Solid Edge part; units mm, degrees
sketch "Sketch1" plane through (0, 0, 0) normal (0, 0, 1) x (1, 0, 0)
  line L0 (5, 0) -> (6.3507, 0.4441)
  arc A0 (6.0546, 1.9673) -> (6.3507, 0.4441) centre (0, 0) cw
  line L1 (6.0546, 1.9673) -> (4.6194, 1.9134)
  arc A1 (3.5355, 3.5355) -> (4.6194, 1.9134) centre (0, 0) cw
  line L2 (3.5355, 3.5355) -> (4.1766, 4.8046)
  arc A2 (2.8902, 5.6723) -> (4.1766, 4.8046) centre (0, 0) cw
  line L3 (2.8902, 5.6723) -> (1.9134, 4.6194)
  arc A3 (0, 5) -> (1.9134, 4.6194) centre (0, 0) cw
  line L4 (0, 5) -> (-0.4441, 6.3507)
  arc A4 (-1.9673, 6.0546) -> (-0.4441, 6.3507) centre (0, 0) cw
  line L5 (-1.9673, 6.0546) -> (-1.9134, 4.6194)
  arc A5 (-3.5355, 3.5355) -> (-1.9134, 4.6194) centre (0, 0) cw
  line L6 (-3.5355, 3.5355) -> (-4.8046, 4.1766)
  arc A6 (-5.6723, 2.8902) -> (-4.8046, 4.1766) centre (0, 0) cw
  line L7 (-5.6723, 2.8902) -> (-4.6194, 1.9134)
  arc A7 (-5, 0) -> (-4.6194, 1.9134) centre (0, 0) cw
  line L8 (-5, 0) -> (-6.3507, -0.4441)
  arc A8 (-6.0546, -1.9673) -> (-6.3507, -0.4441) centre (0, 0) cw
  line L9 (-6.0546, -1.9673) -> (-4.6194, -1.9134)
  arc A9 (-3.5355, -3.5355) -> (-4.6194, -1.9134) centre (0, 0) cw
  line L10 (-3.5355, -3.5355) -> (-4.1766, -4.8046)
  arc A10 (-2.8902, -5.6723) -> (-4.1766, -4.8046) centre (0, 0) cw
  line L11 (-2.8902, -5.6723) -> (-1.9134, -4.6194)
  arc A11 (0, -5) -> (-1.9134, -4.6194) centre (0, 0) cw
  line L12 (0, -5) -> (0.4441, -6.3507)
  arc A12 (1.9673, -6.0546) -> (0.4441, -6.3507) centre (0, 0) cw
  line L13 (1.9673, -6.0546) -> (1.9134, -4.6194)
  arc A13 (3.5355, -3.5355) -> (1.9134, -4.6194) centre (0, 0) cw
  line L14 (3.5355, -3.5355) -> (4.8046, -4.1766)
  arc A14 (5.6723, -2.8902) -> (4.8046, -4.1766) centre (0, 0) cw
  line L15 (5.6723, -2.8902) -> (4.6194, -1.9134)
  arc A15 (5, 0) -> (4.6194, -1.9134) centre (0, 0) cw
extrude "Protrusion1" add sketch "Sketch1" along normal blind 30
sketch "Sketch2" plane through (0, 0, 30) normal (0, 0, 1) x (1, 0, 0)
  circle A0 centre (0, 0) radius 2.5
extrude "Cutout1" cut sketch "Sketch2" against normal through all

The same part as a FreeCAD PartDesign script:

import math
import FreeCAD as App
import Part
import Sketcher
from FreeCAD import Vector
Q = App.Units.Quantity

doc = App.newDocument("Part")
params = doc.addObject("Spreadsheet::Sheet", "Params")
for row, (alias, value) in enumerate([
    ("sketch1_radius", "5 mm"),
    ("pad1_length", "30 mm"),
    ("sketch2_diameter", "5 mm"),
], start=1):
    params.set(f"A{row}", alias)
    params.set(f"B{row}", "=" + value)
    params.setAlias(f"B{row}", alias)

body = doc.addObject("PartDesign::Body", "Body")

sketch1 = body.newObject("Sketcher::SketchObject", "Sketch")
sketch1.AttachmentSupport = (doc.getObject("XY_Plane"), [""])
sketch1.MapMode = "FlatFace"
sketch1.addGeometry(Part.ArcOfCircle(Part.Circle(Vector(0, 0, 0), Vector(0, 0, 1), 4.999952), math.radians(-22.499808), math.radians(0)), False)
sketch1.addGeometry(Part.LineSegment(Vector(5, 0, 0), Vector(6.3507, 0.4441, 0)), False)
sketch1.addGeometry(Part.ArcOfCircle(Part.Circle(Vector(0, 0, 0), Vector(0, 0, 1), 6.366196), math.radians(4.000142), math.radians(18.000353)), False)
sketch1.addGeometry(Part.LineSegment(Vector(6.0546, 1.9673, 0), Vector(4.6194, 1.9134, 0)), False)
sketch1.addGeometry(Part.ArcOfCircle(Part.Circle(Vector(-0.00088, -0.000722, 0), Vector(0, 0, 1), 5.001085), math.radians(22.503595), math.radians(44.998721)), False)
sketch1.addGeometry(Part.LineSegment(Vector(3.5355, 3.5355, 0), Vector(4.1766, 4.8046, 0)), False)
sketch1.addGeometry(Part.ArcOfCircle(Part.Circle(Vector(0, 0, 0), Vector(0, 0, 1), 6.36618), math.radians(48.999831), math.radians(62.999849)), False)
sketch1.addGeometry(Part.LineSegment(Vector(2.8902, 5.6723, 0), Vector(1.9134, 4.6194, 0)), False)
sketch1.addGeometry(Part.ArcOfCircle(Part.Circle(Vector(0, 0, 0), Vector(0, 0, 1), 4.999952), math.radians(67.500192), math.radians(90)), False)
sketch1.addGeometry(Part.LineSegment(Vector(0, 5, 0), Vector(-0.4441, 6.3507, 0)), False)
sketch1.addGeometry(Part.ArcOfCircle(Part.Circle(Vector(0, 0, 0), Vector(0, 0, 1), 6.366196), math.radians(94.000142), math.radians(108.000353)), False)
sketch1.addGeometry(Part.LineSegment(Vector(-1.9673, 6.0546, 0), Vector(-1.9134, 4.6194, 0)), False)
sketch1.addGeometry(Part.ArcOfCircle(Part.Circle(Vector(0.000722, -0.00088, 0), Vector(0, 0, 1), 5.001085), math.radians(112.503595), math.radians(134.998721)), False)
sketch1.addGeometry(Part.LineSegment(Vector(-3.5355, 3.5355, 0), Vector(-4.8046, 4.1766, 0)), False)
sketch1.addGeometry(Part.ArcOfCircle(Part.Circle(Vector(0, 0, 0), Vector(0, 0, 1), 6.36618), math.radians(138.999831), math.radians(152.999849)), False)
sketch1.addGeometry(Part.LineSegment(Vector(-5.6723, 2.8902, 0), Vector(-4.6194, 1.9134, 0)), False)
sketch1.addGeometry(Part.ArcOfCircle(Part.Circle(Vector(0, 0, 0), Vector(0, 0, 1), 4.999952), math.radians(157.500192), math.radians(180)), False)
sketch1.addGeometry(Part.LineSegment(Vector(-5, 0, 0), Vector(-6.3507, -0.4441, 0)), False)
sketch1.addGeometry(Part.ArcOfCircle(Part.Circle(Vector(0, 0, 0), Vector(0, 0, 1), 6.366196), math.radians(-175.999858), math.radians(-161.999647)), False)
sketch1.addGeometry(Part.LineSegment(Vector(-6.0546, -1.9673, 0), Vector(-4.6194, -1.9134, 0)), False)
sketch1.addGeometry(Part.ArcOfCircle(Part.Circle(Vector(0.00088, 0.000722, 0), Vector(0, 0, 1), 5.001085), math.radians(-157.496405), math.radians(-135.001279)), False)
sketch1.addGeometry(Part.LineSegment(Vector(-3.5355, -3.5355, 0), Vector(-4.1766, -4.8046, 0)), False)
sketch1.addGeometry(Part.ArcOfCircle(Part.Circle(Vector(0, 0, 0), Vector(0, 0, 1), 6.36618), math.radians(-131.000169), math.radians(-117.000151)), False)
sketch1.addGeometry(Part.LineSegment(Vector(-2.8902, -5.6723, 0), Vector(-1.9134, -4.6194, 0)), False)
sketch1.addGeometry(Part.ArcOfCircle(Part.Circle(Vector(0, 0, 0), Vector(0, 0, 1), 4.999952), math.radians(-112.499808), math.radians(-90)), False)
sketch1.addGeometry(Part.LineSegment(Vector(0, -5, 0), Vector(0.4441, -6.3507, 0)), False)
sketch1.addGeometry(Part.ArcOfCircle(Part.Circle(Vector(0, 0, 0), Vector(0, 0, 1), 6.366196), math.radians(-85.999858), math.radians(-71.999647)), False)
sketch1.addGeometry(Part.LineSegment(Vector(1.9673, -6.0546, 0), Vector(1.9134, -4.6194, 0)), False)
sketch1.addGeometry(Part.ArcOfCircle(Part.Circle(Vector(-0.000722, 0.00088, 0), Vector(0, 0, 1), 5.001085), math.radians(-67.496405), math.radians(-45.001279)), False)
sketch1.addGeometry(Part.LineSegment(Vector(3.5355, -3.5355, 0), Vector(4.8046, -4.1766, 0)), False)
sketch1.addGeometry(Part.ArcOfCircle(Part.Circle(Vector(0, 0, 0), Vector(0, 0, 1), 6.36618), math.radians(-41.000169), math.radians(-27.000151)), False)
sketch1.addGeometry(Part.LineSegment(Vector(5.6723, -2.8902, 0), Vector(4.6194, -1.9134, 0)), False)
sketch1.addConstraint(Sketcher.Constraint("Coincident", 0, 2, 1, 1))
sketch1.addConstraint(Sketcher.Constraint("Coincident", 1, 2, 2, 1))
sketch1.addConstraint(Sketcher.Constraint("Coincident", 2, 2, 3, 1))
sketch1.addConstraint(Sketcher.Constraint("Coincident", 3, 2, 4, 1))
sketch1.addConstraint(Sketcher.Constraint("Coincident", 4, 2, 5, 1))
sketch1.addConstraint(Sketcher.Constraint("Coincident", 5, 2, 6, 1))
sketch1.addConstraint(Sketcher.Constraint("Coincident", 6, 2, 7, 1))
sketch1.addConstraint(Sketcher.Constraint("Coincident", 7, 2, 8, 1))
sketch1.addConstraint(Sketcher.Constraint("Coincident", 8, 2, 9, 1))
sketch1.addConstraint(Sketcher.Constraint("Coincident", 9, 2, 10, 1))
sketch1.addConstraint(Sketcher.Constraint("Coincident", 10, 2, 11, 1))
sketch1.addConstraint(Sketcher.Constraint("Coincident", 11, 2, 12, 1))
sketch1.addConstraint(Sketcher.Constraint("Coincident", 12, 2, 13, 1))
sketch1.addConstraint(Sketcher.Constraint("Coincident", 13, 2, 14, 1))
sketch1.addConstraint(Sketcher.Constraint("Coincident", 14, 2, 15, 1))
sketch1.addConstraint(Sketcher.Constraint("Coincident", 15, 2, 16, 1))
sketch1.addConstraint(Sketcher.Constraint("Coincident", 16, 2, 17, 1))
sketch1.addConstraint(Sketcher.Constraint("Coincident", 17, 2, 18, 1))
sketch1.addConstraint(Sketcher.Constraint("Coincident", 18, 2, 19, 1))
sketch1.addConstraint(Sketcher.Constraint("Coincident", 19, 2, 20, 1))
sketch1.addConstraint(Sketcher.Constraint("Coincident", 20, 2, 21, 1))
sketch1.addConstraint(Sketcher.Constraint("Coincident", 21, 2, 22, 1))
sketch1.addConstraint(Sketcher.Constraint("Coincident", 22, 2, 23, 1))
sketch1.addConstraint(Sketcher.Constraint("Coincident", 23, 2, 24, 1))
sketch1.addConstraint(Sketcher.Constraint("Coincident", 24, 2, 25, 1))
sketch1.addConstraint(Sketcher.Constraint("Coincident", 25, 2, 26, 1))
sketch1.addConstraint(Sketcher.Constraint("Coincident", 26, 2, 27, 1))
sketch1.addConstraint(Sketcher.Constraint("Coincident", 27, 2, 28, 1))
sketch1.addConstraint(Sketcher.Constraint("Coincident", 28, 2, 29, 1))
sketch1.addConstraint(Sketcher.Constraint("Coincident", 29, 2, 30, 1))
sketch1.addConstraint(Sketcher.Constraint("Coincident", 30, 2, 31, 1))
sketch1.addConstraint(Sketcher.Constraint("Coincident", 31, 2, 0, 1))
sketch1.addConstraint(Sketcher.Constraint("Coincident", 0, 3, -1, 1))
sketch1.addConstraint(Sketcher.Constraint("Coincident", 2, 3, -1, 1))
sketch1.addConstraint(Sketcher.Constraint("Coincident", 6, 3, -1, 1))
sketch1.addConstraint(Sketcher.Constraint("Coincident", 8, 3, -1, 1))
sketch1.addConstraint(Sketcher.Constraint("Coincident", 10, 3, -1, 1))
sketch1.addConstraint(Sketcher.Constraint("Coincident", 14, 3, -1, 1))
sketch1.addConstraint(Sketcher.Constraint("Coincident", 16, 3, -1, 1))
sketch1.addConstraint(Sketcher.Constraint("Coincident", 18, 3, -1, 1))
sketch1.addConstraint(Sketcher.Constraint("Coincident", 22, 3, -1, 1))
sketch1.addConstraint(Sketcher.Constraint("Coincident", 24, 3, -1, 1))
sketch1.addConstraint(Sketcher.Constraint("Coincident", 26, 3, -1, 1))
sketch1.addConstraint(Sketcher.Constraint("Coincident", 30, 3, -1, 1))
sketch1.addConstraint(Sketcher.Constraint("Equal", 2, 6))
sketch1.addConstraint(Sketcher.Constraint("Equal", 0, 8))
sketch1.addConstraint(Sketcher.Constraint("Equal", 6, 10))
sketch1.addConstraint(Sketcher.Constraint("Equal", 4, 12))
sketch1.addConstraint(Sketcher.Constraint("Equal", 10, 14))
sketch1.addConstraint(Sketcher.Constraint("Equal", 8, 16))
sketch1.addConstraint(Sketcher.Constraint("Equal", 14, 18))
sketch1.addConstraint(Sketcher.Constraint("Equal", 12, 20))
sketch1.addConstraint(Sketcher.Constraint("Equal", 18, 22))
sketch1.addConstraint(Sketcher.Constraint("Equal", 16, 24))
sketch1.addConstraint(Sketcher.Constraint("Equal", 22, 26))
sketch1.addConstraint(Sketcher.Constraint("Equal", 20, 28))
sketch1.addConstraint(Sketcher.Constraint("Equal", 26, 30))
sketch1.addConstraint(Sketcher.Constraint("Symmetric", 4, 3, 20, 3, -1, 1))
sketch1.addConstraint(Sketcher.Constraint("Symmetric", 12, 3, 28, 3, -1, 1))
sketch1.addConstraint(Sketcher.Constraint("Symmetric", 4, 3, 12, 3, -2))
sketch1.addConstraint(Sketcher.Constraint("Symmetric", 7, 2, 11, 2, -2))
sketch1.addConstraint(Sketcher.Constraint("Symmetric", 3, 2, 15, 2, -2))
sketch1.addConstraint(Sketcher.Constraint("PointOnObject", 0, 2, -1))
sketch1.addConstraint(Sketcher.Constraint("PointOnObject", 8, 2, -2))
sketch1.addConstraint(Sketcher.Constraint("PointOnObject", 16, 2, -1))
sketch1.addConstraint(Sketcher.Constraint("PointOnObject", 24, 2, -2))
sketch1.addConstraint(Sketcher.Constraint("Perpendicular", 1, 9))
sketch1.addConstraint(Sketcher.Constraint("Perpendicular", 3, 11))
sketch1.addConstraint(Sketcher.Constraint("Perpendicular", 5, 13))
sketch1.addConstraint(Sketcher.Constraint("Perpendicular", 7, 15))
sketch1.addConstraint(Sketcher.Constraint("Perpendicular", 9, 17))
sketch1.addConstraint(Sketcher.Constraint("Perpendicular", 11, 19))
sketch1.addConstraint(Sketcher.Constraint("Perpendicular", 13, 21))
sketch1.addConstraint(Sketcher.Constraint("Perpendicular", 15, 23))
sketch1.addConstraint(Sketcher.Constraint("Perpendicular", 17, 25))
sketch1.addConstraint(Sketcher.Constraint("Perpendicular", 19, 27))
sketch1.addConstraint(Sketcher.Constraint("Perpendicular", 21, 29))
sketch1.addConstraint(Sketcher.Constraint("Perpendicular", 23, 31))
sketch1.addConstraint(Sketcher.Constraint("Horizontal", 4, 2, 12, 2))
sketch1.addConstraint(Sketcher.Constraint("Horizontal", 23, 2, 27, 2))
sketch1.addConstraint(Sketcher.Constraint("Horizontal", 20, 2, 28, 2))
sketch1.addConstraint(Sketcher.Constraint("Horizontal", 19, 2, 31, 2))
sketch1.addConstraint(Sketcher.Constraint("Vertical", 15, 2, 19, 2))
sketch1.addConstraint(Sketcher.Constraint("Vertical", 12, 2, 20, 2))
sketch1.addConstraint(Sketcher.Constraint("Vertical", 11, 2, 23, 2))
sketch1.addConstraint(Sketcher.Constraint("Equal", 1, 5))
sketch1.addConstraint(Sketcher.Constraint("Equal", 3, 7))
sketch1.addConstraint(Sketcher.Constraint("Equal", 7, 11))
sketch1.addConstraint(Sketcher.Constraint("Equal", 9, 13))
sketch1.addConstraint(Sketcher.Constraint("Radius", 0, 5.0))
sketch1.addConstraint(Sketcher.Constraint("Angle", 1, Q("18.2005 deg")))
sketch1.addConstraint(Sketcher.Constraint("Angle", 5, Q("63.1989 deg")))
sketch1.addConstraint(Sketcher.Constraint("Angle", 3, Q("-177.8492 deg")))
sketch1.addConstraint(Sketcher.Constraint("Radius", 2, 6.3662))
sketch1.addConstraint(Sketcher.Constraint("DistanceX", 2, 2, 1, 2, 0.296))
sketch1.setExpression("Constraints[89]", "Params.sketch1_radius")
pad1 = body.newObject("PartDesign::Pad", "Pad")
pad1.Profile = sketch1
pad1.setExpression("Length", "Params.pad1_length")

sketch2 = body.newObject("Sketcher::SketchObject", "Sketch001")
sketch2.AttachmentSupport = (doc.getObject("XY_Plane"), [""])
sketch2.MapMode = "FlatFace"
sketch2.AttachmentOffset = App.Placement(Vector(0, 0, 30), App.Rotation())
sketch2.addGeometry(Part.Circle(Vector(0, 0, 0), Vector(0, 0, 1), 2.5), False)
sketch2.addConstraint(Sketcher.Constraint("Coincident", 0, 3, -1, 1))
sketch2.addConstraint(Sketcher.Constraint("Diameter", 0, 5.0))
sketch2.setExpression("Constraints[1]", "Params.sketch2_diameter")
pocket1 = body.newObject("PartDesign::Pocket", "Pocket")
pocket1.Profile = sketch2
pocket1.Type = "ThroughAll"

doc.recompute()
